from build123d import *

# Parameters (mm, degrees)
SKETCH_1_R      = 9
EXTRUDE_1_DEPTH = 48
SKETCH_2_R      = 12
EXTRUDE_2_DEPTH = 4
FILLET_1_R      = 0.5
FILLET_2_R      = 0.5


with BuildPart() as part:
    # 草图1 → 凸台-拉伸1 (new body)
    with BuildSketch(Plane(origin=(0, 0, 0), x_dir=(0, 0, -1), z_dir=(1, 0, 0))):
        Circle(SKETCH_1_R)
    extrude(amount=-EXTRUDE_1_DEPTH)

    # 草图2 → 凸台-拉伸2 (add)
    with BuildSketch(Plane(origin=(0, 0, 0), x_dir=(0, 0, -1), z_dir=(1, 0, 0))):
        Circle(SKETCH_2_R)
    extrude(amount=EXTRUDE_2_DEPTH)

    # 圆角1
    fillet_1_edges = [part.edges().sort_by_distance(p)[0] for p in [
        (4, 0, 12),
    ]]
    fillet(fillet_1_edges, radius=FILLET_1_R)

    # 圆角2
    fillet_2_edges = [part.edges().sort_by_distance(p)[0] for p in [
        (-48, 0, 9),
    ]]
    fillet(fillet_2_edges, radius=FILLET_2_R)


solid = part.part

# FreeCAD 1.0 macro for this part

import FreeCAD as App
import Part
import Sketcher
Q = App.Units.Quantity


def edges_at(feature, points):
    """Names of the edges that pass closest to the given points."""
    edges = feature.Shape.Edges
    near = lambda p: min(range(len(edges)), key=lambda i: edges[i].distToShape(Part.Vertex(*p))[0])
    return sorted({f"Edge{near(p) + 1}" for p in points})

doc = App.newDocument("Part")
params = doc.addObject("Spreadsheet::Sheet", "Params")
for row, (alias, value) in enumerate([
    ("sketch1_diameter", "18 mm"),
    ("pad1_length", "48 mm"),
    ("sketch2_diameter", "24 mm"),
    ("pad2_length", "4 mm"),
    ("fillet_radius", "0.5 mm"),
    ("fillet2_radius", "0.5 mm"),
], start=1):
    params.set(f"A{row}", alias)
    params.set(f"B{row}", "=" + value)
    params.setAlias(f"B{row}", alias)

body = doc.addObject("PartDesign::Body", "Body")

sketch1 = body.newObject("Sketcher::SketchObject", "Sketch")
sketch1.AttachmentSupport = (doc.getObject("YZ_Plane"), [""])
sketch1.MapMode = "FlatFace"
sketch1.addGeometry(Part.Circle(App.Vector(0, 0, 0), App.Vector(0, 0, 1), 9), False)
sketch1.addConstraint([
    Sketcher.Constraint("Coincident", 0, 3, -1, 1),
    Sketcher.Constraint("Diameter", 0, Q("18 mm")),
])
sketch1.setExpression("Constraints[1]", "Params.sketch1_diameter")
pad1 = body.newObject("PartDesign::Pad", "Pad")
pad1.Profile = sketch1
pad1.setExpression("Length", "Params.pad1_length")
pad1.Reversed = True

sketch2 = body.newObject("Sketcher::SketchObject", "Sketch001")
sketch2.AttachmentSupport = (doc.getObject("YZ_Plane"), [""])
sketch2.MapMode = "FlatFace"
sketch2.addGeometry(Part.Circle(App.Vector(0, 0, 0), App.Vector(0, 0, 1), 12), False)
sketch2.addConstraint([
    Sketcher.Constraint("Coincident", 0, 3, -1, 1),
    Sketcher.Constraint("Diameter", 0, Q("24 mm")),
])
sketch2.setExpression("Constraints[1]", "Params.sketch2_diameter")
pad2 = body.newObject("PartDesign::Pad", "Pad001")
pad2.Profile = sketch2
pad2.setExpression("Length", "Params.pad2_length")
doc.recompute()

fillet = body.newObject("PartDesign::Fillet", "Fillet")
fillet.Base = (pad2, edges_at(pad2, [(4, 0, 12)]))
fillet.setExpression("Radius", "Params.fillet_radius")
doc.recompute()

fillet2 = body.newObject("PartDesign::Fillet", "Fillet001")
fillet2.Base = (fillet, edges_at(fillet, [(-48, 0, 9)]))
fillet2.setExpression("Radius", "Params.fillet2_radius")

doc.recompute()
